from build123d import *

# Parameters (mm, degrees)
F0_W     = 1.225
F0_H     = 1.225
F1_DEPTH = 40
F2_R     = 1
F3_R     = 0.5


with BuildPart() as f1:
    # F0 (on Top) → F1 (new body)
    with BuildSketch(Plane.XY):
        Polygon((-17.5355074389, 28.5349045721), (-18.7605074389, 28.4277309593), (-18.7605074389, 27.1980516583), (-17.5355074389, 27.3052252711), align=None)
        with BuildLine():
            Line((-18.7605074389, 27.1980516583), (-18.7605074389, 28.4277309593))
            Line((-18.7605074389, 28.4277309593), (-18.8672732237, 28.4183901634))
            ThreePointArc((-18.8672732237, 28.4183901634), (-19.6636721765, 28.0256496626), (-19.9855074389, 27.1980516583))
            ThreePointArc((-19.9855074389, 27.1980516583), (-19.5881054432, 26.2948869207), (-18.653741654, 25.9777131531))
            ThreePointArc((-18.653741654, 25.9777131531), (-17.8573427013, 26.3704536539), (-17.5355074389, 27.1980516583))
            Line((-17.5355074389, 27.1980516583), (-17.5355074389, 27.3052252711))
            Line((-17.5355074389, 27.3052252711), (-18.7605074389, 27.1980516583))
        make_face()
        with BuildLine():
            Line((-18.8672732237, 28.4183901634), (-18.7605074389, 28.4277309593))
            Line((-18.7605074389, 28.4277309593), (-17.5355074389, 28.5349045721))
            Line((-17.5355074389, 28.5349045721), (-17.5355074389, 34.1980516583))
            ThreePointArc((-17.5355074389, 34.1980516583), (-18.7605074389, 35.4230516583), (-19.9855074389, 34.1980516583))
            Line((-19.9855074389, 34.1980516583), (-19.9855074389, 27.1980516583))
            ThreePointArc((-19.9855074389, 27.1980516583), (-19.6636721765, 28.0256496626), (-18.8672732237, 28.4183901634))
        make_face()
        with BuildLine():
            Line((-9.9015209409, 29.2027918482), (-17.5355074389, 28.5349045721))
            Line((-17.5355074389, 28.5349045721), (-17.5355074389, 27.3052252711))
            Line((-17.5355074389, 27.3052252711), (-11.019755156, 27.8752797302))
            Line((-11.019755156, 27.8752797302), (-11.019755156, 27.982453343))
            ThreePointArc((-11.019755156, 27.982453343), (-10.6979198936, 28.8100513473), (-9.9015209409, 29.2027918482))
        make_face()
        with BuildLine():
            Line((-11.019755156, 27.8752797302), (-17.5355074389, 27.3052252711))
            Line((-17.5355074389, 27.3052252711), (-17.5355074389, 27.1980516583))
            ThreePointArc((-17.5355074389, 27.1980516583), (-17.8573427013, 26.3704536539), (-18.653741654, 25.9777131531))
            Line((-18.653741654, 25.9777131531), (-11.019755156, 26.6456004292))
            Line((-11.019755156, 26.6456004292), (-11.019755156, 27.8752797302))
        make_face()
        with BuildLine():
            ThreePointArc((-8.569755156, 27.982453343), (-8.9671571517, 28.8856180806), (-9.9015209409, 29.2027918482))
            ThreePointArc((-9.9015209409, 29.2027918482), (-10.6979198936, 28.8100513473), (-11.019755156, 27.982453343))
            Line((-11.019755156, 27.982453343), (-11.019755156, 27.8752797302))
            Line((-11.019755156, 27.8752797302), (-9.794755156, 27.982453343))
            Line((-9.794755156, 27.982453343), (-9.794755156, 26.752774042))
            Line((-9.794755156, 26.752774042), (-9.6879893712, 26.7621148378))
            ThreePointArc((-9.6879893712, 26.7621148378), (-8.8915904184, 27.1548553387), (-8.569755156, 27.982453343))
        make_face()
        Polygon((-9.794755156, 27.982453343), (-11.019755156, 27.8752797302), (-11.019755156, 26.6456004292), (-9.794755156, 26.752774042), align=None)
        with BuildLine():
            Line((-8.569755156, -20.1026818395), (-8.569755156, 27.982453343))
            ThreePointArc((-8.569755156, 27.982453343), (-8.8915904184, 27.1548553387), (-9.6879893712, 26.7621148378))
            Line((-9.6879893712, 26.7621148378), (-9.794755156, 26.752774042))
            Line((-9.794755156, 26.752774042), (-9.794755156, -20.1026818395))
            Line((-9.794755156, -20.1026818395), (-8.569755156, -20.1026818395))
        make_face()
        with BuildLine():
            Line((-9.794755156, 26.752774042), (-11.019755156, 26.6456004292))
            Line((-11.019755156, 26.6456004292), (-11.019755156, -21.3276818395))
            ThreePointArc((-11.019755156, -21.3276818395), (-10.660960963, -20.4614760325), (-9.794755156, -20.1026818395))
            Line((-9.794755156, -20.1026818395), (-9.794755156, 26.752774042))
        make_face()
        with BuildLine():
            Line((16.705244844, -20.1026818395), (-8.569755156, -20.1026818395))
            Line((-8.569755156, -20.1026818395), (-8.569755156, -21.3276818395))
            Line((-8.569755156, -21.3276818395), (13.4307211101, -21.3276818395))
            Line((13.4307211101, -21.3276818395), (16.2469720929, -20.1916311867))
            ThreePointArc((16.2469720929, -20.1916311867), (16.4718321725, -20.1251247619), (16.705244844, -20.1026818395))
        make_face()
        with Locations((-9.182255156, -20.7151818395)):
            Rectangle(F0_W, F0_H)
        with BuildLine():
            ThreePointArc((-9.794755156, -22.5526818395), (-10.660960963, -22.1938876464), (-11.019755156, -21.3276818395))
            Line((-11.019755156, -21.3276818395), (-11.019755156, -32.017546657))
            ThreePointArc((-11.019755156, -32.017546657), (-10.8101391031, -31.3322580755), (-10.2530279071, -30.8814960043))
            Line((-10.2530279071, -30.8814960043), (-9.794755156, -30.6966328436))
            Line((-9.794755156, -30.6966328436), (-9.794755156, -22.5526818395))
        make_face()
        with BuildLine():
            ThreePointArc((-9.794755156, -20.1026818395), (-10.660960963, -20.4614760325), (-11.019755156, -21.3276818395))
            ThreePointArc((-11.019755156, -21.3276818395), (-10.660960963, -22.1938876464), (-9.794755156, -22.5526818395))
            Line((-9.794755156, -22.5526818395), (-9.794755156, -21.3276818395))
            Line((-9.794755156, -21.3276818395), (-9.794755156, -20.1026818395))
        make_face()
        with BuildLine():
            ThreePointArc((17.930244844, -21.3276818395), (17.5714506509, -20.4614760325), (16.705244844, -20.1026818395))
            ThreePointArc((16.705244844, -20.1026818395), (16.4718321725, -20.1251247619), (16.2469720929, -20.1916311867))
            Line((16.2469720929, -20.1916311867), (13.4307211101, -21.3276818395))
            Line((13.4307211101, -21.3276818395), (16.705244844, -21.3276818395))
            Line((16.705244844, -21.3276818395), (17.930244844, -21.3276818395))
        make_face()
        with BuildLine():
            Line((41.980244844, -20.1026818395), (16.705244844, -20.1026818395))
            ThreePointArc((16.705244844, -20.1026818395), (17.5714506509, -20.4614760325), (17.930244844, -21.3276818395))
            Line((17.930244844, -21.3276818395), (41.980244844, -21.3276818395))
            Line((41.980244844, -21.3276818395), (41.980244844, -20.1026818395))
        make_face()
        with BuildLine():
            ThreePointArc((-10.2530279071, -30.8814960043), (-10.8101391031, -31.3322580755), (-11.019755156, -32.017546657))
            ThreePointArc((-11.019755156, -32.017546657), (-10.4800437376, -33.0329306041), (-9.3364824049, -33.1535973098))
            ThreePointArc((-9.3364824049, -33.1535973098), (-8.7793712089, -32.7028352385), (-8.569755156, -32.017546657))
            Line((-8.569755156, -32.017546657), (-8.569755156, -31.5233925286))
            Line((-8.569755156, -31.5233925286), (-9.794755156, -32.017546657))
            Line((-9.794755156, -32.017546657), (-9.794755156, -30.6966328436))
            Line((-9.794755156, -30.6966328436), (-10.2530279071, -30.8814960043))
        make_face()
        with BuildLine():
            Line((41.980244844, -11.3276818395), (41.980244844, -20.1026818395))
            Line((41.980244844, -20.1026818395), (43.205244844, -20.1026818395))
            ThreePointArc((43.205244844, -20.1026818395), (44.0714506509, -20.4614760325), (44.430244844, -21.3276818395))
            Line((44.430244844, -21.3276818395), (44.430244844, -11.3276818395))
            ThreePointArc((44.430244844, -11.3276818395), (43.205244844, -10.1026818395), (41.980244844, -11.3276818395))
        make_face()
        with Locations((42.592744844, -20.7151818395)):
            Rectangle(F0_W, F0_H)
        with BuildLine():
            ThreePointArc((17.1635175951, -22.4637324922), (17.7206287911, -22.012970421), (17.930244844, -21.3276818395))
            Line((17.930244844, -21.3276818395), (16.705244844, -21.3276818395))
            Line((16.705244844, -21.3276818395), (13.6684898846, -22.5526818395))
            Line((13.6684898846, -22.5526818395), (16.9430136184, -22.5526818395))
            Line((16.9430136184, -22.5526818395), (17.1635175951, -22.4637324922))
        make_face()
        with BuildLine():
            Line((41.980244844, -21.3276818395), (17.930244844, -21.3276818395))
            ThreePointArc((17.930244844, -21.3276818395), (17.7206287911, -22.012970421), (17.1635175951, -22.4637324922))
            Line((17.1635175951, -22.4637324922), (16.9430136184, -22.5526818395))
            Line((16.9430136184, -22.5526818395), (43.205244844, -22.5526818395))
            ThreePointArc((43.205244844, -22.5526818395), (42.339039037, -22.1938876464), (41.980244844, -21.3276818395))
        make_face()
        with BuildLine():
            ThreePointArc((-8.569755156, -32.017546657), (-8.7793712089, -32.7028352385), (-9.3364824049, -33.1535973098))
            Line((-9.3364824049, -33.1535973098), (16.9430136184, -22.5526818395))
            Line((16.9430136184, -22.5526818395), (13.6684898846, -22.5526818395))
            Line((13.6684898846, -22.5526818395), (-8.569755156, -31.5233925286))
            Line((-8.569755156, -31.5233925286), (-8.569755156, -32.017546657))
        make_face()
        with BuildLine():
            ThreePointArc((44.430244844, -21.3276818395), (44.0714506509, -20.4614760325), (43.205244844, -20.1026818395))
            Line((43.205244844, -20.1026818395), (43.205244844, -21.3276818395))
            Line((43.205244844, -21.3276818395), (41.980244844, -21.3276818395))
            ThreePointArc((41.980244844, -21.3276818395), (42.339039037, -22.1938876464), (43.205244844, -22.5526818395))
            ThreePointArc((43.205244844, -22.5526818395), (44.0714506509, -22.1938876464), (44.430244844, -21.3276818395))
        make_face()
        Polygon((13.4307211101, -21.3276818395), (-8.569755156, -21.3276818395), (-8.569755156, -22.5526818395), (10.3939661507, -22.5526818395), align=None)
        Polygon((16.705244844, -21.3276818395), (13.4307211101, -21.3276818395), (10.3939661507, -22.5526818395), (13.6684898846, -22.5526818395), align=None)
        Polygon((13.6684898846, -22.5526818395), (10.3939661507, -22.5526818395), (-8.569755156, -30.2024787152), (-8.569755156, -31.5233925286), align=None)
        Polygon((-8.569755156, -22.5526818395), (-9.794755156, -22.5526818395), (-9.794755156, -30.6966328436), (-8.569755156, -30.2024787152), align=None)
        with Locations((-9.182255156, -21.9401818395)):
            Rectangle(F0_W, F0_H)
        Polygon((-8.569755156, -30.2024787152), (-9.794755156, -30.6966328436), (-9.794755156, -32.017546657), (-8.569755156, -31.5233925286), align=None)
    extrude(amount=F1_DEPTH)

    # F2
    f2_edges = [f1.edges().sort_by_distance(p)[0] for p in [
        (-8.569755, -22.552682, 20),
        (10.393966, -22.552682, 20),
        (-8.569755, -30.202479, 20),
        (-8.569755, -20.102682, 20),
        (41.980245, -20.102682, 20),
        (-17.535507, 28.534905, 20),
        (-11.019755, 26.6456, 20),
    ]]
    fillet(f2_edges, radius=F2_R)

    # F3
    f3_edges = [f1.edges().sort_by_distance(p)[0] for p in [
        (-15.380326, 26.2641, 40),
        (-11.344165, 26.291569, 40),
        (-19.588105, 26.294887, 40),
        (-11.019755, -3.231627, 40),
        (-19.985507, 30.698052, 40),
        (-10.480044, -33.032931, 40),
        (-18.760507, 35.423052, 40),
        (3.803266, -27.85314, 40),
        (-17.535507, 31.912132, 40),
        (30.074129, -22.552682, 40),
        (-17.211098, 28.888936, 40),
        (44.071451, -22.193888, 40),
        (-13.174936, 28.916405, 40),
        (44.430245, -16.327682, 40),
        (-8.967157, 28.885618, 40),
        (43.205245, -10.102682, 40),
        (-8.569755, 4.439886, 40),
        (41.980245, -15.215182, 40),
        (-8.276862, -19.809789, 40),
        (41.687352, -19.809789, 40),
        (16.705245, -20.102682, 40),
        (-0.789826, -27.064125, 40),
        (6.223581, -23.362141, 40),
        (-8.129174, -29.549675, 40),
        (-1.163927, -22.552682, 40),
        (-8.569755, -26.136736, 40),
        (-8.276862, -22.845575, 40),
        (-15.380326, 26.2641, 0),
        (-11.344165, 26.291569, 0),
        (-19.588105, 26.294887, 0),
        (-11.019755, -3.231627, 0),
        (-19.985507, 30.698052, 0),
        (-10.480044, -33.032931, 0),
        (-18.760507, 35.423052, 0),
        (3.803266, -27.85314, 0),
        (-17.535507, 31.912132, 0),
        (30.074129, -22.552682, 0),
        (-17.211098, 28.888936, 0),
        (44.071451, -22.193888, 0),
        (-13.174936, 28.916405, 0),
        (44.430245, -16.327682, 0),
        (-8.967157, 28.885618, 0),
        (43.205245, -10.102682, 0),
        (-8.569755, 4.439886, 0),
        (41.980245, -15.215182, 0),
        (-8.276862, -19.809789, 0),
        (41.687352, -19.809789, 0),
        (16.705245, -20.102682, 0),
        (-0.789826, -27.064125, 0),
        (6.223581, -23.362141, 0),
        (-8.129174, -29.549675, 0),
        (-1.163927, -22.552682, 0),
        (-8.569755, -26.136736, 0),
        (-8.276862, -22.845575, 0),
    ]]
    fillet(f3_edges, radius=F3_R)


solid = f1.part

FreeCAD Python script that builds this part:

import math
import FreeCAD as App
import Part
import Sketcher
Q = App.Units.Quantity


def edges_at(feature, points):
    """Names of the edges that pass closest to the given points."""
    edges = feature.Shape.Edges
    near = lambda p: min(range(len(edges)), key=lambda i: edges[i].distToShape(Part.Vertex(*p))[0])
    return sorted({f"Edge{near(p) + 1}" for p in points})


def add_polygon(sketch, points):
    """Adds a closed chain of lines whose ends are joined by coincident constraints."""
    first, n = sketch.GeometryCount, len(points)
    for a, b in zip(points, points[1:] + points[:1]):
        sketch.addGeometry(Part.LineSegment(App.Vector(*a, 0), App.Vector(*b, 0)), False)
    for i in range(n):
        sketch.addConstraint(Sketcher.Constraint("Coincident", first + i, 2, first + (i + 1) % n, 1))

doc = App.newDocument("Part")
body = doc.addObject("PartDesign::Body", "Body")

# Sketch on XY plane
sketch1 = body.newObject("Sketcher::SketchObject", "Sketch")
sketch1.AttachmentSupport = (doc.getObject("XY_Plane"), [""])
sketch1.MapMode = "FlatFace"
sketch1.addGeometry(Part.ArcOfCircle(Part.Circle(App.Vector(-18.8, 27.2, 0), App.Vector(0, 0, 1), 1.2), math.radians(180), math.radians(275)), False)  # 0
sketch1.addGeometry(Part.LineSegment(App.Vector(-18.7, 26, 0), App.Vector(-11, 26.6, 0)), False)  # 1
sketch1.addGeometry(Part.LineSegment(App.Vector(-11, 26.6, 0), App.Vector(-11, -32, 0)), False)  # 2
sketch1.addGeometry(Part.ArcOfCircle(Part.Circle(App.Vector(-9.8, -32, 0), App.Vector(0, 0, 1), 1.2), math.radians(180), math.radians(292)), False)  # 3
sketch1.addGeometry(Part.LineSegment(App.Vector(-9.3, -33.2, 0), App.Vector(16.9, -22.6, 0)), False)  # 4
sketch1.addGeometry(Part.LineSegment(App.Vector(16.9, -22.6, 0), App.Vector(43.2, -22.6, 0)), False)  # 5
sketch1.addGeometry(Part.ArcOfCircle(Part.Circle(App.Vector(43.2, -21.3, 0), App.Vector(0, 0, 1), 1.2), math.radians(-90), math.radians(0)), False)  # 6
sketch1.addGeometry(Part.LineSegment(App.Vector(44.4, -21.3, 0), App.Vector(44.4, -11.3, 0)), False)  # 7
sketch1.addGeometry(Part.ArcOfCircle(Part.Circle(App.Vector(43.2, -11.3, 0), App.Vector(0, 0, 1), 1.2), math.radians(0), math.radians(180)), False)  # 8
sketch1.addGeometry(Part.LineSegment(App.Vector(42, -11.3, 0), App.Vector(42, -20.1, 0)), False)  # 9
sketch1.addGeometry(Part.LineSegment(App.Vector(42, -20.1, 0), App.Vector(-8.6, -20.1, 0)), False)  # 10
sketch1.addGeometry(Part.LineSegment(App.Vector(-8.6, -20.1, 0), App.Vector(-8.6, 28, 0)), False)  # 11
sketch1.addGeometry(Part.ArcOfCircle(Part.Circle(App.Vector(-9.8, 28, 0), App.Vector(0, 0, 1), 1.2), math.radians(0), math.radians(95)), False)  # 12
sketch1.addGeometry(Part.LineSegment(App.Vector(-9.9, 29.2, 0), App.Vector(-17.5, 28.5, 0)), False)  # 13
sketch1.addGeometry(Part.LineSegment(App.Vector(-17.5, 28.5, 0), App.Vector(-17.5, 34.2, 0)), False)  # 14
sketch1.addGeometry(Part.ArcOfCircle(Part.Circle(App.Vector(-18.8, 34.2, 0), App.Vector(0, 0, 1), 1.2), math.radians(0), math.radians(180)), False)  # 15
sketch1.addGeometry(Part.LineSegment(App.Vector(-20, 34.2, 0), App.Vector(-20, 27.2, 0)), False)  # 16
add_polygon(sketch1, [(10.4, -22.6), (-8.6, -30.2), (-8.6, -22.6)])  # lines 17-19
sketch1.addConstraint(Sketcher.Constraint("Tangent", 0, 2, 1, 1))
sketch1.addConstraint(Sketcher.Constraint("Coincident", 1, 2, 2, 1))
sketch1.addConstraint(Sketcher.Constraint("Tangent", 2, 2, 3, 1))
sketch1.addConstraint(Sketcher.Constraint("Tangent", 3, 2, 4, 1))
sketch1.addConstraint(Sketcher.Constraint("Coincident", 4, 2, 5, 1))
sketch1.addConstraint(Sketcher.Constraint("Tangent", 5, 2, 6, 1))
sketch1.addConstraint(Sketcher.Constraint("Tangent", 6, 2, 7, 1))
sketch1.addConstraint(Sketcher.Constraint("Tangent", 7, 2, 8, 1))
sketch1.addConstraint(Sketcher.Constraint("Tangent", 8, 2, 9, 1))
sketch1.addConstraint(Sketcher.Constraint("Coincident", 9, 2, 10, 1))
sketch1.addConstraint(Sketcher.Constraint("Coincident", 10, 2, 11, 1))
sketch1.addConstraint(Sketcher.Constraint("Tangent", 11, 2, 12, 1))
sketch1.addConstraint(Sketcher.Constraint("Tangent", 12, 2, 13, 1))
sketch1.addConstraint(Sketcher.Constraint("Coincident", 13, 2, 14, 1))
sketch1.addConstraint(Sketcher.Constraint("Tangent", 14, 2, 15, 1))
sketch1.addConstraint(Sketcher.Constraint("Tangent", 15, 2, 16, 1))
sketch1.addConstraint(Sketcher.Constraint("Tangent", 16, 2, 0, 1))
sketch1.addConstraint(Sketcher.Constraint("Vertical", 2))
sketch1.addConstraint(Sketcher.Constraint("Horizontal", 5))
sketch1.addConstraint(Sketcher.Constraint("Vertical", 7))
sketch1.addConstraint(Sketcher.Constraint("Vertical", 9))
sketch1.addConstraint(Sketcher.Constraint("Horizontal", 10))
sketch1.addConstraint(Sketcher.Constraint("Vertical", 11))
sketch1.addConstraint(Sketcher.Constraint("Vertical", 14))
sketch1.addConstraint(Sketcher.Constraint("Vertical", 16))
sketch1.addConstraint(Sketcher.Constraint("Vertical", 18))
sketch1.addConstraint(Sketcher.Constraint("Horizontal", 19))
sketch1.addConstraint(Sketcher.Constraint("Equal", 0, 3))
sketch1.addConstraint(Sketcher.Constraint("Equal", 3, 6))
sketch1.addConstraint(Sketcher.Constraint("Equal", 6, 8))
sketch1.addConstraint(Sketcher.Constraint("Equal", 8, 12))
sketch1.addConstraint(Sketcher.Constraint("Equal", 12, 15))
sketch1.addConstraint(Sketcher.Constraint("Parallel", 1, 13))
sketch1.addConstraint(Sketcher.Constraint("Parallel", 4, 17))
sketch1.addConstraint(Sketcher.Constraint("Horizontal", 5, 2, 18, 2))
sketch1.addConstraint(Sketcher.Constraint("Vertical", 3, 3, 12, 3))
sketch1.addConstraint(Sketcher.Constraint("Vertical", 11, 2, 17, 2))
sketch1.addConstraint(Sketcher.Constraint("DistanceY", 7, 1, 7, 2, 10.0))
sketch1.addConstraint(Sketcher.Constraint("DistanceY", 16, 2, 16, 1, 7.0))
sketch1.addConstraint(Sketcher.Constraint("Angle", 1, Q("5 deg")))
sketch1.addConstraint(Sketcher.Constraint("Radius", 0, 1.225))
sketch1.addConstraint(Sketcher.Constraint("DistanceX", 3, 3, 6, 3, 53.0))
sketch1.addConstraint(Sketcher.Constraint("DistanceY", 3, 3, 12, 3, 60.0))
sketch1.addConstraint(Sketcher.Constraint("DistanceY", 9, 2, 9, 1, 8.775))
sketch1.addConstraint(Sketcher.Constraint("Distance", 4, 28.337101))
sketch1.addConstraint(Sketcher.Constraint("DistanceX", 5, 1, 5, 2, 26.262231))
sketch1.addConstraint(Sketcher.Constraint("DistanceX", 19, 1, 19, 2, 18.963721))
sketch1.addConstraint(Sketcher.Constraint("DistanceY", -1, 1, 1, 2, 26.6456))
sketch1.addConstraint(Sketcher.Constraint("DistanceY", 3, 3, 0, 3, 59.215598))
sketch1.addConstraint(Sketcher.Constraint("DistanceY", 2, 2, 2, 1, 58.663147))
sketch1.addConstraint(Sketcher.Constraint("DistanceX", 0, 2, -1, 1, 18.653742))
pad1 = body.newObject("PartDesign::Pad", "Pad")
pad1.Profile = sketch1
pad1.Length = 40
doc.recompute()

fillet = body.newObject("PartDesign::Fillet", "Fillet")
fillet.Base = (pad1, edges_at(pad1, [
    (-8.57, -22.553, 20),
    (10.394, -22.553, 20),
    (-8.57, -30.202, 20),
    (-8.57, -20.103, 20),
    (41.98, -20.103, 20),
    (-17.536, 28.535, 20),
    (-11.02, 26.646, 20),
]))
fillet.Radius = 1
doc.recompute()

fillet2 = body.newObject("PartDesign::Fillet", "Fillet001")
fillet2.Base = (fillet, edges_at(fillet, [
    (-15.38, 26.264, 40),
    (-11.344, 26.292, 40),
    (-19.588, 26.295, 40),
    (-11.02, -3.232, 40),
    (-19.986, 30.698, 40),
    (-10.48, -33.033, 40),
    (-18.761, 35.423, 40),
    (3.803, -27.853, 40),
    (-17.536, 31.912, 40),
    (30.074, -22.553, 40),
    (-17.211, 28.889, 40),
    (44.071, -22.194, 40),
    (-13.175, 28.916, 40),
    (44.43, -16.328, 40),
    (-8.967, 28.886, 40),
    (43.205, -10.103, 40),
    (-8.57, 4.44, 40),
    (41.98, -15.215, 40),
    (-8.277, -19.81, 40),
    (41.687, -19.81, 40),
    (16.705, -20.103, 40),
    (-0.79, -27.064, 40),
    (6.224, -23.362, 40),
    (-8.129, -29.55, 40),
    (-1.164, -22.553, 40),
    (-8.57, -26.137, 40),
    (-8.277, -22.846, 40),
    (-15.38, 26.264, 0),
    (-11.344, 26.292, 0),
    (-19.588, 26.295, 0),
    (-11.02, -3.232, 0),
    (-19.986, 30.698, 0),
    (-10.48, -33.033, 0),
    (-18.761, 35.423, 0),
    (3.803, -27.853, 0),
    (-17.536, 31.912, 0),
    (30.074, -22.553, 0),
    (-17.211, 28.889, 0),
    (44.071, -22.194, 0),
    (-13.175, 28.916, 0),
    (44.43, -16.328, 0),
    (-8.967, 28.886, 0),
    (43.205, -10.103, 0),
    (-8.57, 4.44, 0),
    (41.98, -15.215, 0),
    (-8.277, -19.81, 0),
    (41.687, -19.81, 0),
    (16.705, -20.103, 0),
    (-0.79, -27.064, 0),
    (6.224, -23.362, 0),
    (-8.129, -29.55, 0),
    (-1.164, -22.553, 0),
    (-8.57, -26.137, 0),
    (-8.277, -22.846, 0),
]))
fillet2.Radius = 0.5

doc.recompute()
